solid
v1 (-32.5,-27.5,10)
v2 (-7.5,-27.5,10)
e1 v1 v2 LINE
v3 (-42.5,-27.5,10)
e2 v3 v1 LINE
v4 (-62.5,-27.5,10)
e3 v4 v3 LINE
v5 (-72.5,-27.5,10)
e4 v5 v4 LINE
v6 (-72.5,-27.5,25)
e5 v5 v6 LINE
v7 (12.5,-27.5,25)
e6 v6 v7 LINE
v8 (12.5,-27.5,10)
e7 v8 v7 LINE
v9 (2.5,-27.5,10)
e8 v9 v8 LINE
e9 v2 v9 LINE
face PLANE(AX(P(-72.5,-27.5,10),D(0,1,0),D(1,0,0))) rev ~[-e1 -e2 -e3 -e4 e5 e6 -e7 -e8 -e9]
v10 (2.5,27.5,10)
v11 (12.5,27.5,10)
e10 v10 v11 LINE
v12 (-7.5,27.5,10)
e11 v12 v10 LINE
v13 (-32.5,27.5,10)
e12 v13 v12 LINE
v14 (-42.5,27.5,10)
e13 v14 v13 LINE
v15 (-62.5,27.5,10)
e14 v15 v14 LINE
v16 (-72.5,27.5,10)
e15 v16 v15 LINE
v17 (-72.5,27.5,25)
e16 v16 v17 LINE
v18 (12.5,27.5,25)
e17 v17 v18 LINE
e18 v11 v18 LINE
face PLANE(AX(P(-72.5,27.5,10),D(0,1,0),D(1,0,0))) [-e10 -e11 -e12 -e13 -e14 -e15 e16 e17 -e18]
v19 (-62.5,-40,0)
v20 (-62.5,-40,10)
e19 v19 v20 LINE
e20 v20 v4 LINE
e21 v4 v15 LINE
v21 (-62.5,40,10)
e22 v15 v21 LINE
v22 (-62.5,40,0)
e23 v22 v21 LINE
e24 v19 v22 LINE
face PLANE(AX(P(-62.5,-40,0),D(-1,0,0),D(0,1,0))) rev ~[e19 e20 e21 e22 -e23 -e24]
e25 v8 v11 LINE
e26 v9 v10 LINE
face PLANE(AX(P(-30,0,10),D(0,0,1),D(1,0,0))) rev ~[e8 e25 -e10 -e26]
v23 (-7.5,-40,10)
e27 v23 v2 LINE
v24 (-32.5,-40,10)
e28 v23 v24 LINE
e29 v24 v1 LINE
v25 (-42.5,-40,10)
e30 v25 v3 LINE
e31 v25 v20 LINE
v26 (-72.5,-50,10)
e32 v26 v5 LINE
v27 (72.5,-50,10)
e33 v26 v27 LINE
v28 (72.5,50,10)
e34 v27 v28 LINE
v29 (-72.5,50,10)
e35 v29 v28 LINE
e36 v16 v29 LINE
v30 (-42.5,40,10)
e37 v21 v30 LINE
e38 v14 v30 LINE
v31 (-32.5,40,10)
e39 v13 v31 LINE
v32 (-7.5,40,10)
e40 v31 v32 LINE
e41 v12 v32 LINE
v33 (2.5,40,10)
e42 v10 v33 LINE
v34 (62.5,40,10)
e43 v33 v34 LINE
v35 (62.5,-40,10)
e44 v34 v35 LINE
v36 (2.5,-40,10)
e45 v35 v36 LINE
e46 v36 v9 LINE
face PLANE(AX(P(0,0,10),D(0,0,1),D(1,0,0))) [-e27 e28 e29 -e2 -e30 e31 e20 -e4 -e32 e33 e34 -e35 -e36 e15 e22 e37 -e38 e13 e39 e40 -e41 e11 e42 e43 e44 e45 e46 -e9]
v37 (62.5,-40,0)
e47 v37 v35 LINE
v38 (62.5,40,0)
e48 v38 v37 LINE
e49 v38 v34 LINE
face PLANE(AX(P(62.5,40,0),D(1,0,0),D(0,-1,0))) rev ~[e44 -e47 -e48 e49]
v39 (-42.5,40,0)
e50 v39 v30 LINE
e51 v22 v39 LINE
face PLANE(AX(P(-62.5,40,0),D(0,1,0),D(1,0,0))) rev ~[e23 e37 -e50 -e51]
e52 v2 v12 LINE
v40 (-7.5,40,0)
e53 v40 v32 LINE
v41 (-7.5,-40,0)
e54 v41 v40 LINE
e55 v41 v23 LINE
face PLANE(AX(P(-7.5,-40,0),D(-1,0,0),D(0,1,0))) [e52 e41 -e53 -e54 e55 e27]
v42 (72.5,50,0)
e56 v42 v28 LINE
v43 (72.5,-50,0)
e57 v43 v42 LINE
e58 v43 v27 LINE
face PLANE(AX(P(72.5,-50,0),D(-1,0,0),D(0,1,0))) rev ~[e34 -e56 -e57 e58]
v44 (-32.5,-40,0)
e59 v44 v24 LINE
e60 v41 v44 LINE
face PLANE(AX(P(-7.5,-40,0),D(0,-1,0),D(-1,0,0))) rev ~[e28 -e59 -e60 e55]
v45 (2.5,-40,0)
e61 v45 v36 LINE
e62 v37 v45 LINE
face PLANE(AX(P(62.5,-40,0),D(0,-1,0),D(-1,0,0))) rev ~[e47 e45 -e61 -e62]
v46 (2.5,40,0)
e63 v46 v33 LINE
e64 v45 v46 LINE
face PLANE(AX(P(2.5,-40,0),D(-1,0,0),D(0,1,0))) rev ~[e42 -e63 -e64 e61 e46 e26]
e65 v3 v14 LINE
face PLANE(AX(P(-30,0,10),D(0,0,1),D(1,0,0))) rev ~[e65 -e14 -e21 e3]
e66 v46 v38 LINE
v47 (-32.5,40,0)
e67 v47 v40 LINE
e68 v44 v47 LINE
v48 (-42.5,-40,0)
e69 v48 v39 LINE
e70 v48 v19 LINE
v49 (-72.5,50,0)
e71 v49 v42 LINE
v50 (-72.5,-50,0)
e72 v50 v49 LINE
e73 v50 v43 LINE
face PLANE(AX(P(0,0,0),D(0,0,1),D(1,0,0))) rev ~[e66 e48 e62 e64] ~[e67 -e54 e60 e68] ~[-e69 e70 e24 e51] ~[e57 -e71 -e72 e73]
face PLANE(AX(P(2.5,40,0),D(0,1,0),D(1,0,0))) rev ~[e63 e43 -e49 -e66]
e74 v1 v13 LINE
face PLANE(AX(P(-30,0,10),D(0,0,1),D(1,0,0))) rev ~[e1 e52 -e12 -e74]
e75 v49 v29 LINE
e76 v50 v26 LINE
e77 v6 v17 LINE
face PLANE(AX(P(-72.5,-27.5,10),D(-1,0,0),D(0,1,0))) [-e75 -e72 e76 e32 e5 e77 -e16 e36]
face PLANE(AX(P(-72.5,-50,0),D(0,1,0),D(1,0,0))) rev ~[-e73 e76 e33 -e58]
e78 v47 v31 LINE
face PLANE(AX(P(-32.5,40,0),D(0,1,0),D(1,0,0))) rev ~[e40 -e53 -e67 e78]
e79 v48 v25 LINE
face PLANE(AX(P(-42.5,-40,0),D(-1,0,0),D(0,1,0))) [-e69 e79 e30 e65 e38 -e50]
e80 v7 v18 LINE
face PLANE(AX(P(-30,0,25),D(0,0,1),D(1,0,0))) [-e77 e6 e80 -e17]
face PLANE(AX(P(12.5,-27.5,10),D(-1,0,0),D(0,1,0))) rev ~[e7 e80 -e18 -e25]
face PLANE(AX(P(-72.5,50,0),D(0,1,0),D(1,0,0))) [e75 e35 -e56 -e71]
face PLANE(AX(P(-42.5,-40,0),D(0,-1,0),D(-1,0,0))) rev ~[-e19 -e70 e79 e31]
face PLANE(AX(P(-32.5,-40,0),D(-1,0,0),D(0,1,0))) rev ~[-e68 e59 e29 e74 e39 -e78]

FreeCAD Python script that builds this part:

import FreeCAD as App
import Part
import Sketcher
Q = App.Units.Quantity

doc = App.newDocument("Part")
body = doc.addObject("PartDesign::Body", "Body")

sketch1 = body.newObject("Sketcher::SketchObject", "Sketch")
sketch1.AttachmentSupport = (doc.getObject("XY_Plane"), [""])
sketch1.MapMode = "FlatFace"
sketch1.addGeometry([
    Part.LineSegment(App.Vector(-72.5, 50, 0), App.Vector(-72.5, -50, 0)),
    Part.LineSegment(App.Vector(-72.5, -50, 0), App.Vector(72.5, -50, 0)),
    Part.LineSegment(App.Vector(72.5, -50, 0), App.Vector(72.5, 50, 0)),
    Part.LineSegment(App.Vector(72.5, 50, 0), App.Vector(-72.5, 50, 0)),
    Part.LineSegment(App.Vector(62.5, -40, 0), App.Vector(2.5, -40, 0)),
    Part.LineSegment(App.Vector(2.5, -40, 0), App.Vector(2.5, 40, 0)),
    Part.LineSegment(App.Vector(2.5, 40, 0), App.Vector(62.5, 40, 0)),
    Part.LineSegment(App.Vector(62.5, 40, 0), App.Vector(62.5, -40, 0)),
    Part.LineSegment(App.Vector(-7.5, -40, 0), App.Vector(-32.5, -40, 0)),
    Part.LineSegment(App.Vector(-32.5, -40, 0), App.Vector(-32.5, 40, 0)),
    Part.LineSegment(App.Vector(-32.5, 40, 0), App.Vector(-7.5, 40, 0)),
    Part.LineSegment(App.Vector(-7.5, 40, 0), App.Vector(-7.5, -40, 0)),
    Part.LineSegment(App.Vector(-42.5, -40, 0), App.Vector(-62.5, -40, 0)),
    Part.LineSegment(App.Vector(-62.5, -40, 0), App.Vector(-62.5, 40, 0)),
    Part.LineSegment(App.Vector(-62.5, 40, 0), App.Vector(-42.5, 40, 0)),
    Part.LineSegment(App.Vector(-42.5, 40, 0), App.Vector(-42.5, -40, 0)),
], False)
sketch1.addConstraint([
    Sketcher.Constraint("Coincident", 0, 2, 1, 1),
    Sketcher.Constraint("Coincident", 1, 2, 2, 1),
    Sketcher.Constraint("Coincident", 2, 2, 3, 1),
    Sketcher.Constraint("Coincident", 3, 2, 0, 1),
    Sketcher.Constraint("Coincident", 4, 2, 5, 1),
    Sketcher.Constraint("Coincident", 5, 2, 6, 1),
    Sketcher.Constraint("Coincident", 6, 2, 7, 1),
    Sketcher.Constraint("Coincident", 7, 2, 4, 1),
    Sketcher.Constraint("Coincident", 8, 2, 9, 1),
    Sketcher.Constraint("Coincident", 9, 2, 10, 1),
    Sketcher.Constraint("Coincident", 10, 2, 11, 1),
    Sketcher.Constraint("Coincident", 11, 2, 8, 1),
    Sketcher.Constraint("Coincident", 12, 2, 13, 1),
    Sketcher.Constraint("Coincident", 13, 2, 14, 1),
    Sketcher.Constraint("Coincident", 14, 2, 15, 1),
    Sketcher.Constraint("Coincident", 15, 2, 12, 1),
    Sketcher.Constraint("Vertical", 0),
    Sketcher.Constraint("Horizontal", 1),
    Sketcher.Constraint("Vertical", 2),
    Sketcher.Constraint("Horizontal", 3),
    Sketcher.Constraint("Horizontal", 4),
    Sketcher.Constraint("Vertical", 5),
    Sketcher.Constraint("Horizontal", 6),
    Sketcher.Constraint("Vertical", 7),
    Sketcher.Constraint("Horizontal", 8),
    Sketcher.Constraint("Vertical", 9),
    Sketcher.Constraint("Horizontal", 10),
    Sketcher.Constraint("Vertical", 11),
    Sketcher.Constraint("Horizontal", 12),
    Sketcher.Constraint("Vertical", 13),
    Sketcher.Constraint("Horizontal", 14),
    Sketcher.Constraint("Vertical", 15),
    Sketcher.Constraint("Symmetric", 0, 2, 2, 2, -1, 1),
    Sketcher.Constraint("Symmetric", 6, 2, 12, 2, -1, 1),
    Sketcher.Constraint("Horizontal", 7, 2, 8, 2),
    Sketcher.Constraint("Horizontal", 6, 2, 9, 2),
    Sketcher.Constraint("Horizontal", 11, 2, 12, 2),
    Sketcher.Constraint("Horizontal", 10, 2, 13, 2),
    Sketcher.Constraint("DistanceX", 1, 1, 1, 2, Q("145 mm")),
    Sketcher.Constraint("DistanceX", 4, 2, 4, 1, Q("60 mm")),
    Sketcher.Constraint("DistanceX", 8, 2, 8, 1, Q("25 mm")),
    Sketcher.Constraint("DistanceX", 12, 2, 12, 1, Q("20 mm")),
    Sketcher.Constraint("DistanceY", 0, 2, 0, 1, Q("100 mm")),
    Sketcher.Constraint("DistanceY", 5, 1, 5, 2, Q("80 mm")),
    Sketcher.Constraint("DistanceX", 4, 2, 1, 2, Q("70 mm")),
    Sketcher.Constraint("DistanceX", 8, 2, 4, 2, Q("35 mm")),
])
pad1 = body.newObject("PartDesign::Pad", "Pad")
pad1.Profile = sketch1
pad1.Length = 10

sketch2 = body.newObject("Sketcher::SketchObject", "Sketch001")
sketch2.AttachmentSupport = (doc.getObject("XY_Plane"), [""])
sketch2.MapMode = "FlatFace"
sketch2.AttachmentOffset = App.Placement(App.Vector(0, 0, 10), App.Rotation())
sketch2.addGeometry([
    Part.LineSegment(App.Vector(-72.5, 27.5, 0), App.Vector(-72.5, -27.5, 0)),
    Part.LineSegment(App.Vector(-72.5, -27.5, 0), App.Vector(12.5, -27.5, 0)),
    Part.LineSegment(App.Vector(12.5, -27.5, 0), App.Vector(12.5, 27.5, 0)),
    Part.LineSegment(App.Vector(12.5, 27.5, 0), App.Vector(-72.5, 27.5, 0)),
], False)
sketch2.addConstraint([
    Sketcher.Constraint("Coincident", 0, 2, 1, 1),
    Sketcher.Constraint("Coincident", 1, 2, 2, 1),
    Sketcher.Constraint("Coincident", 2, 2, 3, 1),
    Sketcher.Constraint("Coincident", 3, 2, 0, 1),
    Sketcher.Constraint("Vertical", 0),
    Sketcher.Constraint("Horizontal", 1),
    Sketcher.Constraint("Vertical", 2),
    Sketcher.Constraint("Horizontal", 3),
    Sketcher.Constraint("DistanceX", 1, 1, 1, 2, Q("85 mm")),
    Sketcher.Constraint("DistanceY", 0, 2, 0, 1, Q("55 mm")),
    Sketcher.Constraint("DistanceX", 0, 2, -1, 1, Q("72.5 mm")),
    Sketcher.Constraint("DistanceY", 0, 2, -1, 1, Q("27.5 mm")),
])
pad2 = body.newObject("PartDesign::Pad", "Pad001")
pad2.Profile = sketch2
pad2.Length = 15

doc.recompute()
